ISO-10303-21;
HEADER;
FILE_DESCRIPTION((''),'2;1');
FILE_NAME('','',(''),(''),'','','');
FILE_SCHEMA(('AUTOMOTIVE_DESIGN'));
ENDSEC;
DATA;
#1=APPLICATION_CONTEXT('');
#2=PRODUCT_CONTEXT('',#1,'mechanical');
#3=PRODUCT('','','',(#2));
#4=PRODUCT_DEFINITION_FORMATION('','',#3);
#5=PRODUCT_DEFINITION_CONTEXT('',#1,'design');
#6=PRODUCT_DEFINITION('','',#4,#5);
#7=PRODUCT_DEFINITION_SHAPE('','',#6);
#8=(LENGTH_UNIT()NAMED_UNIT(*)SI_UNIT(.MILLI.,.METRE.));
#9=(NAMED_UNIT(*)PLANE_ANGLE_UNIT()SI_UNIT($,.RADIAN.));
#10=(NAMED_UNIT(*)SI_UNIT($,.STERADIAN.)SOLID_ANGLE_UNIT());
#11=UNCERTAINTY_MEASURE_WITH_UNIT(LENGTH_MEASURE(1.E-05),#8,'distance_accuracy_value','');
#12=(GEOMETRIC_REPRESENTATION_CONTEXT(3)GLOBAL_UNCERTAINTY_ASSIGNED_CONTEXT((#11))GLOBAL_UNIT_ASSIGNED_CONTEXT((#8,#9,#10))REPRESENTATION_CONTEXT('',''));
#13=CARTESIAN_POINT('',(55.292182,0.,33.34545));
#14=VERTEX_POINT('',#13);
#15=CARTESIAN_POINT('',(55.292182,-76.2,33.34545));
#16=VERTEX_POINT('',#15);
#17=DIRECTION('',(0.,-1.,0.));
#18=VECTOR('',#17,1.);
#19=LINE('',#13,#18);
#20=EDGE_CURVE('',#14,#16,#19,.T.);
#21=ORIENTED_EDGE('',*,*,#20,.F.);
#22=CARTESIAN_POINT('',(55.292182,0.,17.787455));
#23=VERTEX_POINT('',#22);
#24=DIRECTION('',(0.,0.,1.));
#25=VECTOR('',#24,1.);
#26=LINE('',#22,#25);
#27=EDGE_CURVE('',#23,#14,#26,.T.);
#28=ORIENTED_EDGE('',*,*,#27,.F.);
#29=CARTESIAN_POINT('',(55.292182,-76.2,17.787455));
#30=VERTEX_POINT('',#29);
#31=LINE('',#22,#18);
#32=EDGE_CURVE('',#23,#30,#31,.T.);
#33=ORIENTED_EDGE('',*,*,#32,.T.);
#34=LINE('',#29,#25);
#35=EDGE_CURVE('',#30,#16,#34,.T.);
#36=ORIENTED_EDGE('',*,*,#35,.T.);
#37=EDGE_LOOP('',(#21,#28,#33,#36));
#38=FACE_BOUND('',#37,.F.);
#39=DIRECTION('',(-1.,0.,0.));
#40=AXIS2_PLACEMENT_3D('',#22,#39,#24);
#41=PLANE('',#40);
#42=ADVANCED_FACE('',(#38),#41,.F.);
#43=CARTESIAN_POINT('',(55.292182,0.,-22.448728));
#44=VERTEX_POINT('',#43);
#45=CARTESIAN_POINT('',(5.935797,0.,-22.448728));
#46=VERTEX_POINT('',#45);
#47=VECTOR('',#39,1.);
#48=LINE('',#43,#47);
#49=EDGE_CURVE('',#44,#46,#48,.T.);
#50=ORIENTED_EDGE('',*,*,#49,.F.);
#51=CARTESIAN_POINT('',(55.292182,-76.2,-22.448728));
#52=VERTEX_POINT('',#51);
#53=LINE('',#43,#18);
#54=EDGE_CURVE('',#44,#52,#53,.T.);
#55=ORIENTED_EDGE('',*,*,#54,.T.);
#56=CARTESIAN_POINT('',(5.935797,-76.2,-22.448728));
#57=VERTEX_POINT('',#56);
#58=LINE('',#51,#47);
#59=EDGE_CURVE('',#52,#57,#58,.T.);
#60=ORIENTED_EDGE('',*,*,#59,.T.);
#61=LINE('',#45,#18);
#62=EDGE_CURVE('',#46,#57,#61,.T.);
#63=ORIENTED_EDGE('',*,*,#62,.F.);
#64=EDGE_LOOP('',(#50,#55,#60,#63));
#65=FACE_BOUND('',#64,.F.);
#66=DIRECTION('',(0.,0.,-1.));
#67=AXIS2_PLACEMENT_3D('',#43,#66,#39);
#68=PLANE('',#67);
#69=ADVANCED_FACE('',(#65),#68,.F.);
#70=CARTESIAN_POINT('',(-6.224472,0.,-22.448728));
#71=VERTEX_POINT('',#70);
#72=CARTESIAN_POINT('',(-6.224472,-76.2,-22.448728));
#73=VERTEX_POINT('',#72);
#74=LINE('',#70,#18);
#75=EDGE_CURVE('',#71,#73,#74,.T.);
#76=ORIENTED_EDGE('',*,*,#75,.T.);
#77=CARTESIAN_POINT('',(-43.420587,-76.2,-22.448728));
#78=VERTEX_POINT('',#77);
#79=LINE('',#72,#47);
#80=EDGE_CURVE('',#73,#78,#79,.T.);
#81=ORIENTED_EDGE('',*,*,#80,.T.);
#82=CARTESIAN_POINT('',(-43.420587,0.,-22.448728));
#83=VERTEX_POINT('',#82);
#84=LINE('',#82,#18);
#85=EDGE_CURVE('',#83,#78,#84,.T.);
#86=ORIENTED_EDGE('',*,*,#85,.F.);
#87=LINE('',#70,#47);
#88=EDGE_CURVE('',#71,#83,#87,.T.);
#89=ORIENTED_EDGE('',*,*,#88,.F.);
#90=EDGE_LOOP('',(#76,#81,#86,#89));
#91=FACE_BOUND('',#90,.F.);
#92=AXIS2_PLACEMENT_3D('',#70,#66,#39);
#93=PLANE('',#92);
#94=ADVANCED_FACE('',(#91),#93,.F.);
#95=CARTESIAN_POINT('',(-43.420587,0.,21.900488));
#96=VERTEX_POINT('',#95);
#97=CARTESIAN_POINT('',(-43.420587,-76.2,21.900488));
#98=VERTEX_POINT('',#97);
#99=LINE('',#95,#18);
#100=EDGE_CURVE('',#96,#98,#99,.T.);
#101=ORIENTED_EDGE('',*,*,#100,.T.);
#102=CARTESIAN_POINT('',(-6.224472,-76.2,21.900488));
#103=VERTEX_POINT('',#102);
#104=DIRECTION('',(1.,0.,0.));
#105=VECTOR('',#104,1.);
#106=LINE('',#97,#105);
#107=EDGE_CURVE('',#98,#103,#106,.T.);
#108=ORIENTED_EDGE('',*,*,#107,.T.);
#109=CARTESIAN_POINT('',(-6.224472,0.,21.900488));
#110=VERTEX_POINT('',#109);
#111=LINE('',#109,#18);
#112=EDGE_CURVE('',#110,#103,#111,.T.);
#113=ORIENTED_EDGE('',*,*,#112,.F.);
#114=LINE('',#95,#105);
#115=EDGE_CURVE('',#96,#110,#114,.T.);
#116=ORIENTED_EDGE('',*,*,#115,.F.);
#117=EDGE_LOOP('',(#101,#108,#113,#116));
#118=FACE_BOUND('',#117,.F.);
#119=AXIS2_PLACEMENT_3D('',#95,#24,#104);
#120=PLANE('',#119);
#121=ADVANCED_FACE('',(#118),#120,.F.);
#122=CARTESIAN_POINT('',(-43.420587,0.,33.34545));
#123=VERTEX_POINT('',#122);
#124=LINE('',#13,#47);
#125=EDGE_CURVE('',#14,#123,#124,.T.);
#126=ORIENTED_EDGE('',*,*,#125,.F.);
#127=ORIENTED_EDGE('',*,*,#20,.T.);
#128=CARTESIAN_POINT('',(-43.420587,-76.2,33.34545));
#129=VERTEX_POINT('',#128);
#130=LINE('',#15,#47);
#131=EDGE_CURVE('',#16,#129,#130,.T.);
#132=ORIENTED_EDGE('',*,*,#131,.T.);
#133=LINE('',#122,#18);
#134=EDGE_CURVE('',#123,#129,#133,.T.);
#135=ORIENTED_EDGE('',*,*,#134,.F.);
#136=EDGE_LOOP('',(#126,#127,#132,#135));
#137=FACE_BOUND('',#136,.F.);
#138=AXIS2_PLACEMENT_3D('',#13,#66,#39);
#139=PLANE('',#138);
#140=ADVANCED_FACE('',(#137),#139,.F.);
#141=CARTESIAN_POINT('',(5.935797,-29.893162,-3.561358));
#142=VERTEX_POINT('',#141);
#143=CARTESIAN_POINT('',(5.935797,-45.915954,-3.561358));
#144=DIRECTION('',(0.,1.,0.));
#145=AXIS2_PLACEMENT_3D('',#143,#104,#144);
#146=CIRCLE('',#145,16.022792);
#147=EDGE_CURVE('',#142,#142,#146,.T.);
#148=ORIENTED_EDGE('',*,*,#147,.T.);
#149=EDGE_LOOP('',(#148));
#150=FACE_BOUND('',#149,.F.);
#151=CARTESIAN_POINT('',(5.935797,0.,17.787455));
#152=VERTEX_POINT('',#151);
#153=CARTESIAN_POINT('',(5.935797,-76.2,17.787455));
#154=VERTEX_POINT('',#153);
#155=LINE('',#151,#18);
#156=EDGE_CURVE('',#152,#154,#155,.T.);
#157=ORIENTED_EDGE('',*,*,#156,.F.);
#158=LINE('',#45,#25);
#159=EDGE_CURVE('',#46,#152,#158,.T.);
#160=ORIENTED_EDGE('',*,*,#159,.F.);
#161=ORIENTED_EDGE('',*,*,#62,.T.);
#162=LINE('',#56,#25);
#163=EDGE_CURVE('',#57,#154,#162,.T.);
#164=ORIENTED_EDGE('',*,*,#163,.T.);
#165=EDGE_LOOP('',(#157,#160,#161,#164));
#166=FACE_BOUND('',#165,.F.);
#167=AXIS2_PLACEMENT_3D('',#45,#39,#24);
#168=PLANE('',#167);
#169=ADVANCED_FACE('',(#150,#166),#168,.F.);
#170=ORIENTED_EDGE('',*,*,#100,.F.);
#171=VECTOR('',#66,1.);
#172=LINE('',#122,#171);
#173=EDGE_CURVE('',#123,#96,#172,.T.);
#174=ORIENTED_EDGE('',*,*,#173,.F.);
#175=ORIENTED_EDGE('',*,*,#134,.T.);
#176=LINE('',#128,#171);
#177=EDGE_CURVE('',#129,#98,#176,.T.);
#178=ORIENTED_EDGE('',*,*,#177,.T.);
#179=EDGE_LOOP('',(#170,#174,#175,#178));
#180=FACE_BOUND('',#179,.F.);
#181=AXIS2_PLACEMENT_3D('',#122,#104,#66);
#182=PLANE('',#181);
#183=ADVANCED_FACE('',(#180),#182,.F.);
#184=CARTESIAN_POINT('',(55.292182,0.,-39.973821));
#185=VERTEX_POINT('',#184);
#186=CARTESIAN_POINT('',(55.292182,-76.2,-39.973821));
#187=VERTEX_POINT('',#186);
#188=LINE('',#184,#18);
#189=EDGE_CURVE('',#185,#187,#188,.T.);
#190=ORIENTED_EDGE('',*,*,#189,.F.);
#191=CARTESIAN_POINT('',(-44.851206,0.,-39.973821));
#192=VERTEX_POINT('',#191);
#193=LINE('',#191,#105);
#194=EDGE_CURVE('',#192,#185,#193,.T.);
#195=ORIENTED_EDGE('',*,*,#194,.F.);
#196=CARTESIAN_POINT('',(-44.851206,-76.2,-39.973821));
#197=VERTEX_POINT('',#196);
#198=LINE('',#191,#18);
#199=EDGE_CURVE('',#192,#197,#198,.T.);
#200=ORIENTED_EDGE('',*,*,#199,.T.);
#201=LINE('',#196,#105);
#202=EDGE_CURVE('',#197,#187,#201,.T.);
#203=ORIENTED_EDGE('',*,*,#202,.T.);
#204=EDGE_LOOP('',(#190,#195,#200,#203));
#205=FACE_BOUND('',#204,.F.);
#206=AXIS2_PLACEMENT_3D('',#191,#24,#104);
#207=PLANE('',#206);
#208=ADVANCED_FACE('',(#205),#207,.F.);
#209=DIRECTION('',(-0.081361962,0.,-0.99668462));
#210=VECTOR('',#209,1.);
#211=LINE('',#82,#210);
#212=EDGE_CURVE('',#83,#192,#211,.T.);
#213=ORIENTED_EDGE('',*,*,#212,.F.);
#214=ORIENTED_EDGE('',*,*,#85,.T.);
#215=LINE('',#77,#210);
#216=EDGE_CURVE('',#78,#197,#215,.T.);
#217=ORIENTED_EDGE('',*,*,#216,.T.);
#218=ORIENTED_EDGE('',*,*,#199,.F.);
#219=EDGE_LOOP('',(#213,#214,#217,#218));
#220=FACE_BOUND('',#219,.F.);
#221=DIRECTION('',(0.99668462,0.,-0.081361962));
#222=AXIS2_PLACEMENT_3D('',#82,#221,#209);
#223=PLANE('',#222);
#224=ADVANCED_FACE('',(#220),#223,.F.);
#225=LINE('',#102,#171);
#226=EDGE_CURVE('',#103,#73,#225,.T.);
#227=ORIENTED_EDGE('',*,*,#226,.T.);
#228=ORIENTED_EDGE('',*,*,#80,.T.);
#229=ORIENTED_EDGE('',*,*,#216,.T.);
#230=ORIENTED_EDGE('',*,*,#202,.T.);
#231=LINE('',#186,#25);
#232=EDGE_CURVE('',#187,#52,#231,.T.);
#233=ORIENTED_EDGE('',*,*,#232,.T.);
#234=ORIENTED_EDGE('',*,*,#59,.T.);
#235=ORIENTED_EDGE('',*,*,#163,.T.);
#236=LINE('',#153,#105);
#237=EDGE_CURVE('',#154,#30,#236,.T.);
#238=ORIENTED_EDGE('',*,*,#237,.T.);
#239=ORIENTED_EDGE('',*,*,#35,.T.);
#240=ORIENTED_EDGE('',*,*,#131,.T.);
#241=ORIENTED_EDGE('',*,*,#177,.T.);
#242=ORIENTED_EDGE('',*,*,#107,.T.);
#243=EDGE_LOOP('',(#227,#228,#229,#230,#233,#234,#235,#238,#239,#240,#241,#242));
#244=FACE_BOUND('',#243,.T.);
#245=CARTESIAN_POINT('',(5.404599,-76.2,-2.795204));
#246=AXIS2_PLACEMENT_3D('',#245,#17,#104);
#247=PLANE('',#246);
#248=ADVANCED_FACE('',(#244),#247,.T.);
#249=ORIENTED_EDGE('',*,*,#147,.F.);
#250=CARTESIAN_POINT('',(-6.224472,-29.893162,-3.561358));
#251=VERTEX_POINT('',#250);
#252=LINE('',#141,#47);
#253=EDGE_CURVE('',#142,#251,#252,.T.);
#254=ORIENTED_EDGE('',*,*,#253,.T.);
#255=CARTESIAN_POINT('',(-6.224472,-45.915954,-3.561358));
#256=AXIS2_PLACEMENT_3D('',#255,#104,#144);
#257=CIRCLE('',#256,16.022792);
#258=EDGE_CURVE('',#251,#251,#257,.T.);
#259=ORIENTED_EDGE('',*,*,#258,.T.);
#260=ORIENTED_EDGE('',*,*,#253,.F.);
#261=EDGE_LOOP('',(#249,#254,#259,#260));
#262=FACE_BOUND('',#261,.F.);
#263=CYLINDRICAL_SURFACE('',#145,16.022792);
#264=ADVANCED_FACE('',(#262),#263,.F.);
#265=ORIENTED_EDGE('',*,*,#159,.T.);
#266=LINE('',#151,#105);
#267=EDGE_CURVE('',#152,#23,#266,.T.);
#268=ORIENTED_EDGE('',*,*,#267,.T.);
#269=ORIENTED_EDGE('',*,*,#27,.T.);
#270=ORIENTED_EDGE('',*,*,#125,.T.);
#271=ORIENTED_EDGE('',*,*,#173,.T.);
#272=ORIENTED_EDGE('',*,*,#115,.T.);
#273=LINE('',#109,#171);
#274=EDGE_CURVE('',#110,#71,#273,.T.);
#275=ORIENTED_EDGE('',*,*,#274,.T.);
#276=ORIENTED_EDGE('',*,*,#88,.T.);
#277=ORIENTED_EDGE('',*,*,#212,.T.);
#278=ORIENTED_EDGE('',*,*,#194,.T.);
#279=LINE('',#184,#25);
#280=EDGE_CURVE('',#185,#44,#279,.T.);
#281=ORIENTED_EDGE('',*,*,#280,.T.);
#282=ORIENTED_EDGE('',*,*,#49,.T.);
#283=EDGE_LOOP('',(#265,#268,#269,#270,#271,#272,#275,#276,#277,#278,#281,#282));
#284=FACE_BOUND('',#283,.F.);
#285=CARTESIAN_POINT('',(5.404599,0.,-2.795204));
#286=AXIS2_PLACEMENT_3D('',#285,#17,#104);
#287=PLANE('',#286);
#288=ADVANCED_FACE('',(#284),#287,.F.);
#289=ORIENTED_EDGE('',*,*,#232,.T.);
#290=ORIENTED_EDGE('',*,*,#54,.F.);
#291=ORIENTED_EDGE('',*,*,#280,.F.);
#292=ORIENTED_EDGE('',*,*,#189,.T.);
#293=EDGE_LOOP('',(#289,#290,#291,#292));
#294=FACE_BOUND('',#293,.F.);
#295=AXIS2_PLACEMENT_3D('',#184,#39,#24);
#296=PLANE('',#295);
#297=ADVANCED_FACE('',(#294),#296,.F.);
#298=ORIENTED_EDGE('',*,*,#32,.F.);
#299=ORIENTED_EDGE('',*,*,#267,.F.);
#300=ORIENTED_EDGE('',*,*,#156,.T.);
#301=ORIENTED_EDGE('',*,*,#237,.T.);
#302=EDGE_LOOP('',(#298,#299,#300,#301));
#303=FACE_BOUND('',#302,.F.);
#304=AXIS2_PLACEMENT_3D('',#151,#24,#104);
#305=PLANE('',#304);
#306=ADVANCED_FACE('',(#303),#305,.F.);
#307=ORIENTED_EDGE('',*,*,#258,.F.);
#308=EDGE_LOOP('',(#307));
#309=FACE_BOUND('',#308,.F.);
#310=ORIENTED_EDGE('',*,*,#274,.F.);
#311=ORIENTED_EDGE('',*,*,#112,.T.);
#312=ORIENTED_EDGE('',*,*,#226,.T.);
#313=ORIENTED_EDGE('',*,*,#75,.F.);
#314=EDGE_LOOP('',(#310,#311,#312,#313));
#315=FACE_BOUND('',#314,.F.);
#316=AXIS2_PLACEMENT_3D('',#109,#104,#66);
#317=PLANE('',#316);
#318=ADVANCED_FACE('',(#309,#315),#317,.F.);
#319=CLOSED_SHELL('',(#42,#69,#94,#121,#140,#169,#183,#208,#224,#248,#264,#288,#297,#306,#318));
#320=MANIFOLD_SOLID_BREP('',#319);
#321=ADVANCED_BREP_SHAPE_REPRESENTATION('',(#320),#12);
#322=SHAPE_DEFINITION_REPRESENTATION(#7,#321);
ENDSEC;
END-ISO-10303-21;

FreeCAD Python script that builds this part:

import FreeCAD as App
import Part
import Sketcher
from FreeCAD import Vector

doc = App.newDocument("Part")
params = doc.addObject("Spreadsheet::Sheet", "Params")
for row, (alias, value) in enumerate([
    ("pad1_length", "3 in"),
    ("pocket1_length", "3 in"),
], start=1):
    params.set(f"A{row}", alias)
    params.set(f"B{row}", "=" + value)
    params.setAlias(f"B{row}", alias)

body = doc.addObject("PartDesign::Body", "Body")

# Sketch on XZ plane
sketch1 = body.newObject("Sketcher::SketchObject", "Sketch")
sketch1.AttachmentSupport = (doc.getObject("XZ_Plane"), [""])
sketch1.MapMode = "FlatFace"
sketch1.addGeometry([
    Part.LineSegment(Vector(-43, -22, 0), Vector(-45, -40, 0)),  # 0
    Part.LineSegment(Vector(-45, -40, 0), Vector(55, -40, 0)),  # 1
    Part.LineSegment(Vector(55, -40, 0), Vector(55, -22, 0)),  # 2
    Part.LineSegment(Vector(55, -22, 0), Vector(6, -22, 0)),  # 3
    Part.LineSegment(Vector(6, -22, 0), Vector(6, 18, 0)),  # 4
    Part.LineSegment(Vector(6, 18, 0), Vector(55, 18, 0)),  # 5
    Part.LineSegment(Vector(55, 18, 0), Vector(55, 33, 0)),  # 6
    Part.LineSegment(Vector(55, 33, 0), Vector(-43, 33, 0)),  # 7
    Part.LineSegment(Vector(-43, 33, 0), Vector(-43, 22, 0)),  # 8
    Part.LineSegment(Vector(-43, 22, 0), Vector(-6, 22, 0)),  # 9
    Part.LineSegment(Vector(-6, 22, 0), Vector(-6, -22, 0)),  # 10
    Part.LineSegment(Vector(-6, -22, 0), Vector(-43, -22, 0)),  # 11
], False)
sketch1.addConstraint([
    Sketcher.Constraint("Coincident", 0, 2, 1, 1),
    Sketcher.Constraint("Coincident", 1, 2, 2, 1),
    Sketcher.Constraint("Coincident", 2, 2, 3, 1),
    Sketcher.Constraint("Coincident", 3, 2, 4, 1),
    Sketcher.Constraint("Coincident", 4, 2, 5, 1),
    Sketcher.Constraint("Coincident", 5, 2, 6, 1),
    Sketcher.Constraint("Coincident", 6, 2, 7, 1),
    Sketcher.Constraint("Coincident", 7, 2, 8, 1),
    Sketcher.Constraint("Coincident", 8, 2, 9, 1),
    Sketcher.Constraint("Coincident", 9, 2, 10, 1),
    Sketcher.Constraint("Coincident", 10, 2, 11, 1),
    Sketcher.Constraint("Coincident", 11, 2, 0, 1),
    Sketcher.Constraint("Horizontal", 1),
    Sketcher.Constraint("Vertical", 2),
    Sketcher.Constraint("Horizontal", 3),
    Sketcher.Constraint("Vertical", 4),
    Sketcher.Constraint("Horizontal", 5),
    Sketcher.Constraint("Vertical", 6),
    Sketcher.Constraint("Horizontal", 7),
    Sketcher.Constraint("Vertical", 8),
    Sketcher.Constraint("Horizontal", 9),
    Sketcher.Constraint("Vertical", 10),
    Sketcher.Constraint("Horizontal", 11),
    Sketcher.Constraint("Horizontal", 3, 2, 10, 2),
    Sketcher.Constraint("Vertical", 2, 2, 5, 2),
    Sketcher.Constraint("Vertical", 8, 2, 11, 2),
    Sketcher.Constraint("DistanceX", 7, 2, 7, 1, 98.712769),
    Sketcher.Constraint("Distance", 0, 17.583389),
    Sketcher.Constraint("DistanceX", 1, 1, 1, 2, 100.143388),
    Sketcher.Constraint("DistanceX", 3, 2, 3, 1, 49.356385),
    Sketcher.Constraint("DistanceX", 9, 1, 9, 2, 37.196115),
    Sketcher.Constraint("DistanceY", 4, 1, 4, 2, 40.236183),
    Sketcher.Constraint("DistanceY", 6, 1, 6, 2, 15.557995),
    Sketcher.Constraint("DistanceY", 8, 2, 8, 1, 11.444962),
    Sketcher.Constraint("DistanceY", 0, 2, -1, 1, 39.973821),
    Sketcher.Constraint("DistanceX", -1, 1, 1, 2, 55.292182),
])
pad1 = body.newObject("PartDesign::Pad", "Pad")
pad1.Profile = sketch1
pad1.setExpression("Length", "Params.pad1_length")

# Sketch on YZ plane
sketch2 = body.newObject("Sketcher::SketchObject", "Sketch001")
sketch2.AttachmentSupport = (doc.getObject("YZ_Plane"), [""])
sketch2.MapMode = "FlatFace"
sketch2.AttachmentOffset = App.Placement(Vector(0, 0, 5.935797), App.Rotation())
sketch2.addGeometry(Part.Circle(Vector(-46, -4, 0), Vector(0, 0, 1), 16), False)
sketch2.addConstraint([
    Sketcher.Constraint("Diameter", 0, 32.045584),
    Sketcher.Constraint("DistanceX", 0, 3, -1, 1, 45.915954),
    Sketcher.Constraint("DistanceY", 0, 3, -1, 1, 3.561358),
])
pocket1 = body.newObject("PartDesign::Pocket", "Pocket")
pocket1.Profile = sketch2
pocket1.setExpression("Length", "Params.pocket1_length")

doc.recompute()
